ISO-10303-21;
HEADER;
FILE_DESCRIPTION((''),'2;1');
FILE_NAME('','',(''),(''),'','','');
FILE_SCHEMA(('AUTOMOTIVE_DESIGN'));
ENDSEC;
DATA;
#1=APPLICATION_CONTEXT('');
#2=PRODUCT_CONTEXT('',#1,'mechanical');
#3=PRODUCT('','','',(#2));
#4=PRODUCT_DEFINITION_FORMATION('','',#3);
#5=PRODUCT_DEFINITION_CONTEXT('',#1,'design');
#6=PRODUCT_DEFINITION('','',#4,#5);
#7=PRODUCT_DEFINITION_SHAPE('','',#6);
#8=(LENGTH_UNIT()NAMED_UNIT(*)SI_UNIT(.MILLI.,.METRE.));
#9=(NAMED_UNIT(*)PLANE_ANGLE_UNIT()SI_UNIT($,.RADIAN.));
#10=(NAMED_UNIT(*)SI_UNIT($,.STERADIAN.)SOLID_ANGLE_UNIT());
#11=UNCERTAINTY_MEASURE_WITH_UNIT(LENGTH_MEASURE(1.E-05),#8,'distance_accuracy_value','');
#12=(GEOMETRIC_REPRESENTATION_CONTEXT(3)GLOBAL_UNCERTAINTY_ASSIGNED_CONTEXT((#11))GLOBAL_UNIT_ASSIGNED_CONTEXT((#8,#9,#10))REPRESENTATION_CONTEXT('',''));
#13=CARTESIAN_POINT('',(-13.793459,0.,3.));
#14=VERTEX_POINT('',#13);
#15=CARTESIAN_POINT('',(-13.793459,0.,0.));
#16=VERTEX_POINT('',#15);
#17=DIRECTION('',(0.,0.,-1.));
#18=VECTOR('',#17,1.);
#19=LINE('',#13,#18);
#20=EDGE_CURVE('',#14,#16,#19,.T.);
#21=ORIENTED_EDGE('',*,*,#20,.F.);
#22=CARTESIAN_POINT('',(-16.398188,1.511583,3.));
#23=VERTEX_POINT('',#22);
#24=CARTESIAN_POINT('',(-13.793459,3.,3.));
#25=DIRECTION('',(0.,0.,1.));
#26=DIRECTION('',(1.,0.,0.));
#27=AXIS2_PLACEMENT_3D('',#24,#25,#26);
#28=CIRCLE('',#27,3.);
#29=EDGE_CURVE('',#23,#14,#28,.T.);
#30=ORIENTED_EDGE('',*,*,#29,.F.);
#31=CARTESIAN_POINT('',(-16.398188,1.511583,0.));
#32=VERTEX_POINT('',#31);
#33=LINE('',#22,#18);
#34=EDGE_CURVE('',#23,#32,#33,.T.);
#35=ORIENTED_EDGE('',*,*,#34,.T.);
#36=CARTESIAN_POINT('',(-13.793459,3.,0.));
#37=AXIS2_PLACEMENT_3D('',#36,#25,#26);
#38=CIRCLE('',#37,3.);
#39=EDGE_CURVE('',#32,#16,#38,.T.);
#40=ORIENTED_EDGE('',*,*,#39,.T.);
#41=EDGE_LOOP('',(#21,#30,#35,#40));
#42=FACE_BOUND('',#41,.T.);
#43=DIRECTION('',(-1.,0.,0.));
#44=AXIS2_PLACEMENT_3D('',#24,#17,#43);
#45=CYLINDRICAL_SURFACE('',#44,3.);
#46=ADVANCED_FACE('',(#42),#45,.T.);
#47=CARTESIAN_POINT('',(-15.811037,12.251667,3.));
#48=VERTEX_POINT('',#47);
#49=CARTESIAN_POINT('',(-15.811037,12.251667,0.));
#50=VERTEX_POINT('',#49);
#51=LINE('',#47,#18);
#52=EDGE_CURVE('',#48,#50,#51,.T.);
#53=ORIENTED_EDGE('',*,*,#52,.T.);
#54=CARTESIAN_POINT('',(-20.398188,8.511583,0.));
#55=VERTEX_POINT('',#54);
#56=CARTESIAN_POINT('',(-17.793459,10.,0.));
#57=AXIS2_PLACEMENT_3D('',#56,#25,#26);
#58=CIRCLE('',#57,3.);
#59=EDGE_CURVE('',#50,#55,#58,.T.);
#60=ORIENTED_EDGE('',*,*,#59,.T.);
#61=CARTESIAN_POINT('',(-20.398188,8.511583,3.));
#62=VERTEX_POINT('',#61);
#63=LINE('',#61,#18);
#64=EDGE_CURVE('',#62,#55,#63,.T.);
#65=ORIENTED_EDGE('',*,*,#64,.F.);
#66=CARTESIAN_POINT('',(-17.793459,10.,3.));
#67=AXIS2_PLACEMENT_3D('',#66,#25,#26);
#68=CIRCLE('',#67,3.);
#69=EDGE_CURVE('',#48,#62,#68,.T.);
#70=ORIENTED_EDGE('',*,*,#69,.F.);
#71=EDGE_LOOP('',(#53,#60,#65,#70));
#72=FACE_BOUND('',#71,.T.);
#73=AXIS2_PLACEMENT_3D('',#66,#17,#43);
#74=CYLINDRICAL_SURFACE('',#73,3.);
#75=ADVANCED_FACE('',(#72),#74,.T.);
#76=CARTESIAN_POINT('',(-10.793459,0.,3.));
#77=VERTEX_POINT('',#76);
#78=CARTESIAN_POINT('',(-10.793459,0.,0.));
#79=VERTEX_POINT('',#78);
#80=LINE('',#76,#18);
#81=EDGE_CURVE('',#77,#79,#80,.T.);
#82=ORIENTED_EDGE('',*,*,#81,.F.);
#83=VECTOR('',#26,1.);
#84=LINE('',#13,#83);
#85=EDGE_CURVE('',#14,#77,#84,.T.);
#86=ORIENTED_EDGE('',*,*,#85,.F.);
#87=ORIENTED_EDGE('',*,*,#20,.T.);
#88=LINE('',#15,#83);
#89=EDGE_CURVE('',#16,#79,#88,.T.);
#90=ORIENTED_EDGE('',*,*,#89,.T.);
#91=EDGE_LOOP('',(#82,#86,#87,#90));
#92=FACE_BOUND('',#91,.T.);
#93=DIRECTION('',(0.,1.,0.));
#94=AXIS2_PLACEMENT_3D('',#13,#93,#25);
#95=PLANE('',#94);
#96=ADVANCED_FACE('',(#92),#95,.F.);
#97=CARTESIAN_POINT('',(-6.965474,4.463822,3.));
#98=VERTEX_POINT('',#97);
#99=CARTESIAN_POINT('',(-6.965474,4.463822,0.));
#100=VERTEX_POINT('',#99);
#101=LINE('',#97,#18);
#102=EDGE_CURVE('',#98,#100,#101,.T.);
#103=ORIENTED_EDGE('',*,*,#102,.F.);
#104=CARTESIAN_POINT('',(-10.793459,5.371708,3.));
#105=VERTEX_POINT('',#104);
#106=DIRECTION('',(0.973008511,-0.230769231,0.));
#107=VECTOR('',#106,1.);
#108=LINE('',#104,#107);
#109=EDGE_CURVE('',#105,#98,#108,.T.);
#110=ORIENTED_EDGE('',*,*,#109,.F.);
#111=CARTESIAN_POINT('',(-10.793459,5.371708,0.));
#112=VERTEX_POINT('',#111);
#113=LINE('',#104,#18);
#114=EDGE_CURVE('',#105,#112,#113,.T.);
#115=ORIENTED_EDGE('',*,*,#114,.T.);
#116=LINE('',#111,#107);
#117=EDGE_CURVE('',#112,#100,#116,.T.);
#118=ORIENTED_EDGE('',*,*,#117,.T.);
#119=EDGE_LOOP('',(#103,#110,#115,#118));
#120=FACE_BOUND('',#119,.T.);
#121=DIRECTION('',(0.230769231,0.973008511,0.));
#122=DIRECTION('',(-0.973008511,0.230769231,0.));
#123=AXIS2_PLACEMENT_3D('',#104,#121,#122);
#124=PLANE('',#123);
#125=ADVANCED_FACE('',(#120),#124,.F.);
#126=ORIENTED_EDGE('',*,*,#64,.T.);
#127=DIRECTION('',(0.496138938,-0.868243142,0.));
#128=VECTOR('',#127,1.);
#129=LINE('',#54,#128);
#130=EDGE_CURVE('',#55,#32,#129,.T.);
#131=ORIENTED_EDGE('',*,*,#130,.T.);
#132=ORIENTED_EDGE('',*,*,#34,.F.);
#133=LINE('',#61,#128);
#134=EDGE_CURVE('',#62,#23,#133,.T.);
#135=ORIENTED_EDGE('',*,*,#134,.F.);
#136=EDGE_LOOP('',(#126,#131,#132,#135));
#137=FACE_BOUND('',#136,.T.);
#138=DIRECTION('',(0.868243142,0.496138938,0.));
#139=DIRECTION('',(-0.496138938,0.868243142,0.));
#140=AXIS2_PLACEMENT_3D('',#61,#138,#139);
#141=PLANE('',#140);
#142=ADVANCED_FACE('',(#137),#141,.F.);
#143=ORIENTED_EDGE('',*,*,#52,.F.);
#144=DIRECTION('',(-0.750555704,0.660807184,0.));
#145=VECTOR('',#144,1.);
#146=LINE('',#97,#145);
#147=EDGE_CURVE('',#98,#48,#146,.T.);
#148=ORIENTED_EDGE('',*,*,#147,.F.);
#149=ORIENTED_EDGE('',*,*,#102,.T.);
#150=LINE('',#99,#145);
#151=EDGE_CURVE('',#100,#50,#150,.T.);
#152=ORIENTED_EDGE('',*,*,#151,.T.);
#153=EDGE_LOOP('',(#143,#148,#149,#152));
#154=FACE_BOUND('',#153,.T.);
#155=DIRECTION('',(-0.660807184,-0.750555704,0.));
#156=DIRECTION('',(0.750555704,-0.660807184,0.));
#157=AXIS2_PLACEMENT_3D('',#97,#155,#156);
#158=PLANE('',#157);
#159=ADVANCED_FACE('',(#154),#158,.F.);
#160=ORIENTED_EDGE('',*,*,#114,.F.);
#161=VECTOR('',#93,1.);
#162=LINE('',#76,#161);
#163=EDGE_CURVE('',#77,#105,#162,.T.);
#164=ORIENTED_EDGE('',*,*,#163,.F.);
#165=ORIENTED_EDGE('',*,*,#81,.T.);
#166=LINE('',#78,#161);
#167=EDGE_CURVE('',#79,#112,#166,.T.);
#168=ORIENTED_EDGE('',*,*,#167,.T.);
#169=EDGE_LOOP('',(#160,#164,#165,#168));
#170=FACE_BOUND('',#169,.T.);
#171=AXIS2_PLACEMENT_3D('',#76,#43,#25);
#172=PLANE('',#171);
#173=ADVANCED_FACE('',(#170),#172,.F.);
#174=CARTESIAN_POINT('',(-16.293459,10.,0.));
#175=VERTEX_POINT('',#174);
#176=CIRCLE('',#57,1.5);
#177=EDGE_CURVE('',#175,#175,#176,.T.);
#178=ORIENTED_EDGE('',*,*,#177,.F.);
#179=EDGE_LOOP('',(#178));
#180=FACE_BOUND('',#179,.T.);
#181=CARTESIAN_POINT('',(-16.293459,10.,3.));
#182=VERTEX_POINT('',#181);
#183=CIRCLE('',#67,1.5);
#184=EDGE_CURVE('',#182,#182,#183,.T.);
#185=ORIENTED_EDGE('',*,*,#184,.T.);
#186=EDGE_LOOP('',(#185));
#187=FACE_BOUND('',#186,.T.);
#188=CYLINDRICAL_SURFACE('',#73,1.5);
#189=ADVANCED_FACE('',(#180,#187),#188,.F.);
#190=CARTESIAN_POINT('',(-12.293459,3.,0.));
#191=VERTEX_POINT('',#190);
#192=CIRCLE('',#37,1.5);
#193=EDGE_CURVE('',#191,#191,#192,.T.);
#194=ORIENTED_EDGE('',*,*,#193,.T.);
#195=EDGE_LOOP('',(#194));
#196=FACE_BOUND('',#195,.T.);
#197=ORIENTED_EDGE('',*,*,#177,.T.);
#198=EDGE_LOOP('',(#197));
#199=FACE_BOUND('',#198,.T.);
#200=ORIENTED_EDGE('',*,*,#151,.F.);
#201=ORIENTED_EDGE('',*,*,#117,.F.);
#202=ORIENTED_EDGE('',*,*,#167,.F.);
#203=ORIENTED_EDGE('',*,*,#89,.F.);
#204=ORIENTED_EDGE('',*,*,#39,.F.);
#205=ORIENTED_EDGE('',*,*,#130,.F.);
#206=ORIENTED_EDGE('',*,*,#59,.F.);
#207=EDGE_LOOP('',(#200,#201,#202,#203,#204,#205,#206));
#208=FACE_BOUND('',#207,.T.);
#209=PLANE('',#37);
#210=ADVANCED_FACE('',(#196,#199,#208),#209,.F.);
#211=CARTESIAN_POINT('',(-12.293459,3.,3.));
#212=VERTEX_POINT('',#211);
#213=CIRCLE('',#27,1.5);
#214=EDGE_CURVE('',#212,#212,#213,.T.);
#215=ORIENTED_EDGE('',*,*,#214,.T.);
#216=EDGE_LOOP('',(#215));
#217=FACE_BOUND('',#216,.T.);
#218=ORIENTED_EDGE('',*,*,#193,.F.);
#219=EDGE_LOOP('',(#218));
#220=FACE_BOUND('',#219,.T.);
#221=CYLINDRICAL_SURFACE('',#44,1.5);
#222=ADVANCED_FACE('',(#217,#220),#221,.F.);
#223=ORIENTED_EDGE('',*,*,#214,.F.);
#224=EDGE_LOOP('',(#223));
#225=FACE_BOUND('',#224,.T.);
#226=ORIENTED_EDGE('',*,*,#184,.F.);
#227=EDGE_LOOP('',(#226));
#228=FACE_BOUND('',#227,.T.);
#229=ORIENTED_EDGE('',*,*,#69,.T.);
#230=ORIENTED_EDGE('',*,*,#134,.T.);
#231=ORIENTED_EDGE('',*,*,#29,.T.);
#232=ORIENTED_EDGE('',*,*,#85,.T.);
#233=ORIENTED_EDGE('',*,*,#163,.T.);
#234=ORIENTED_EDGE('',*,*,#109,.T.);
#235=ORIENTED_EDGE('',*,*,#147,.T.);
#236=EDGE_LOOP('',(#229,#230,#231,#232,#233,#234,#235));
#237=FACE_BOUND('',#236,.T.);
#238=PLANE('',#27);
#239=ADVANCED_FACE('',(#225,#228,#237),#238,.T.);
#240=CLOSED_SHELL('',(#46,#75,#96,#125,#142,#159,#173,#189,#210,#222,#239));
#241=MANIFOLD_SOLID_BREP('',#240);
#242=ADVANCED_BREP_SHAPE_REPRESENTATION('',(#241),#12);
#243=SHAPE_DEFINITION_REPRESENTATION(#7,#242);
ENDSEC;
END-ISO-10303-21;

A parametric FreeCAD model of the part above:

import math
import FreeCAD as App
import Part
import Sketcher
from FreeCAD import Vector
Q = App.Units.Quantity

doc = App.newDocument("Part")
body = doc.addObject("PartDesign::Body", "Body")

sketch1 = doc.addObject("Sketcher::SketchObject", "Sketch")
body.addObject(sketch1)
sketch1.AttachmentSupport = (doc.XY_Plane, [""])
sketch1.MapMode = "FlatFace"
sketch1.addGeometry(Part.LineSegment(Vector(-20.4, 8.5, 0), Vector(-16.4, 1.5, 0)), False)
sketch1.addGeometry(Part.ArcOfCircle(Part.Circle(Vector(-13.8, 3, 0), Vector(0, 0, 1), 3), math.radians(-150), math.radians(-90)), False)
sketch1.addGeometry(Part.LineSegment(Vector(-13.8, 0, 0), Vector(-10.8, 0, 0)), False)
sketch1.addGeometry(Part.LineSegment(Vector(-10.8, 0, 0), Vector(-10.8, 5.4, 0)), False)
sketch1.addGeometry(Part.LineSegment(Vector(-10.8, 5.4, 0), Vector(-7, 4.5, 0)), False)
sketch1.addGeometry(Part.LineSegment(Vector(-7, 4.5, 0), Vector(-15.8, 12.3, 0)), False)
sketch1.addGeometry(Part.ArcOfCircle(Part.Circle(Vector(-17.8, 10, 0), Vector(0, 0, 1), 3), math.radians(49), math.radians(210)), False)
sketch1.addGeometry(Part.Circle(Vector(-13.8, 3, 0), Vector(0, 0, 1), 1.5), False)
sketch1.addGeometry(Part.Circle(Vector(-17.8, 10, 0), Vector(0, 0, 1), 1.5), False)
sketch1.addConstraint(Sketcher.Constraint("Tangent", 0, 2, 1, 1))
sketch1.addConstraint(Sketcher.Constraint("Tangent", 1, 2, 2, 1))
sketch1.addConstraint(Sketcher.Constraint("Coincident", 2, 2, 3, 1))
sketch1.addConstraint(Sketcher.Constraint("Coincident", 3, 2, 4, 1))
sketch1.addConstraint(Sketcher.Constraint("Coincident", 4, 2, 5, 1))
sketch1.addConstraint(Sketcher.Constraint("Tangent", 5, 2, 6, 1))
sketch1.addConstraint(Sketcher.Constraint("Tangent", 6, 2, 0, 1))
sketch1.addConstraint(Sketcher.Constraint("Horizontal", 2))
sketch1.addConstraint(Sketcher.Constraint("Vertical", 3))
sketch1.addConstraint(Sketcher.Constraint("Coincident", 7, 3, 1, 3))
sketch1.addConstraint(Sketcher.Constraint("Coincident", 8, 3, 6, 3))
sketch1.addConstraint(Sketcher.Constraint("Equal", 1, 6))
sketch1.addConstraint(Sketcher.Constraint("Equal", 7, 8))
sketch1.addConstraint(Sketcher.Constraint("PointOnObject", 1, 2, -1))
sketch1.addConstraint(Sketcher.Constraint("Diameter", 7, Q("3 mm")))
sketch1.addConstraint(Sketcher.Constraint("Radius", 1, Q("3 mm")))
sketch1.addConstraint(Sketcher.Constraint("DistanceX", 2, 1, 2, 2, Q("3 mm")))
sketch1.addConstraint(Sketcher.Constraint("DistanceY", -1, 1, 6, 3, Q("10 mm")))
sketch1.addConstraint(Sketcher.Constraint("DistanceX", 6, 3, 1, 3, Q("4 mm")))
sketch1.addConstraint(Sketcher.Constraint("DistanceY", 3, 1, 3, 2, Q("5.371708 mm")))
sketch1.addConstraint(Sketcher.Constraint("Distance", 5, Q("11.785352 mm")))
sketch1.addConstraint(Sketcher.Constraint("DistanceX", 1, 3, -1, 1, Q("13.793459 mm")))
sketch1.addConstraint(Sketcher.Constraint("DistanceY", -1, 1, 4, 2, Q("4.463822 mm")))
pad1 = doc.addObject("PartDesign::Pad", "Pad")
body.addObject(pad1)
pad1.Profile = sketch1
pad1.Length = 3

doc.recompute()
